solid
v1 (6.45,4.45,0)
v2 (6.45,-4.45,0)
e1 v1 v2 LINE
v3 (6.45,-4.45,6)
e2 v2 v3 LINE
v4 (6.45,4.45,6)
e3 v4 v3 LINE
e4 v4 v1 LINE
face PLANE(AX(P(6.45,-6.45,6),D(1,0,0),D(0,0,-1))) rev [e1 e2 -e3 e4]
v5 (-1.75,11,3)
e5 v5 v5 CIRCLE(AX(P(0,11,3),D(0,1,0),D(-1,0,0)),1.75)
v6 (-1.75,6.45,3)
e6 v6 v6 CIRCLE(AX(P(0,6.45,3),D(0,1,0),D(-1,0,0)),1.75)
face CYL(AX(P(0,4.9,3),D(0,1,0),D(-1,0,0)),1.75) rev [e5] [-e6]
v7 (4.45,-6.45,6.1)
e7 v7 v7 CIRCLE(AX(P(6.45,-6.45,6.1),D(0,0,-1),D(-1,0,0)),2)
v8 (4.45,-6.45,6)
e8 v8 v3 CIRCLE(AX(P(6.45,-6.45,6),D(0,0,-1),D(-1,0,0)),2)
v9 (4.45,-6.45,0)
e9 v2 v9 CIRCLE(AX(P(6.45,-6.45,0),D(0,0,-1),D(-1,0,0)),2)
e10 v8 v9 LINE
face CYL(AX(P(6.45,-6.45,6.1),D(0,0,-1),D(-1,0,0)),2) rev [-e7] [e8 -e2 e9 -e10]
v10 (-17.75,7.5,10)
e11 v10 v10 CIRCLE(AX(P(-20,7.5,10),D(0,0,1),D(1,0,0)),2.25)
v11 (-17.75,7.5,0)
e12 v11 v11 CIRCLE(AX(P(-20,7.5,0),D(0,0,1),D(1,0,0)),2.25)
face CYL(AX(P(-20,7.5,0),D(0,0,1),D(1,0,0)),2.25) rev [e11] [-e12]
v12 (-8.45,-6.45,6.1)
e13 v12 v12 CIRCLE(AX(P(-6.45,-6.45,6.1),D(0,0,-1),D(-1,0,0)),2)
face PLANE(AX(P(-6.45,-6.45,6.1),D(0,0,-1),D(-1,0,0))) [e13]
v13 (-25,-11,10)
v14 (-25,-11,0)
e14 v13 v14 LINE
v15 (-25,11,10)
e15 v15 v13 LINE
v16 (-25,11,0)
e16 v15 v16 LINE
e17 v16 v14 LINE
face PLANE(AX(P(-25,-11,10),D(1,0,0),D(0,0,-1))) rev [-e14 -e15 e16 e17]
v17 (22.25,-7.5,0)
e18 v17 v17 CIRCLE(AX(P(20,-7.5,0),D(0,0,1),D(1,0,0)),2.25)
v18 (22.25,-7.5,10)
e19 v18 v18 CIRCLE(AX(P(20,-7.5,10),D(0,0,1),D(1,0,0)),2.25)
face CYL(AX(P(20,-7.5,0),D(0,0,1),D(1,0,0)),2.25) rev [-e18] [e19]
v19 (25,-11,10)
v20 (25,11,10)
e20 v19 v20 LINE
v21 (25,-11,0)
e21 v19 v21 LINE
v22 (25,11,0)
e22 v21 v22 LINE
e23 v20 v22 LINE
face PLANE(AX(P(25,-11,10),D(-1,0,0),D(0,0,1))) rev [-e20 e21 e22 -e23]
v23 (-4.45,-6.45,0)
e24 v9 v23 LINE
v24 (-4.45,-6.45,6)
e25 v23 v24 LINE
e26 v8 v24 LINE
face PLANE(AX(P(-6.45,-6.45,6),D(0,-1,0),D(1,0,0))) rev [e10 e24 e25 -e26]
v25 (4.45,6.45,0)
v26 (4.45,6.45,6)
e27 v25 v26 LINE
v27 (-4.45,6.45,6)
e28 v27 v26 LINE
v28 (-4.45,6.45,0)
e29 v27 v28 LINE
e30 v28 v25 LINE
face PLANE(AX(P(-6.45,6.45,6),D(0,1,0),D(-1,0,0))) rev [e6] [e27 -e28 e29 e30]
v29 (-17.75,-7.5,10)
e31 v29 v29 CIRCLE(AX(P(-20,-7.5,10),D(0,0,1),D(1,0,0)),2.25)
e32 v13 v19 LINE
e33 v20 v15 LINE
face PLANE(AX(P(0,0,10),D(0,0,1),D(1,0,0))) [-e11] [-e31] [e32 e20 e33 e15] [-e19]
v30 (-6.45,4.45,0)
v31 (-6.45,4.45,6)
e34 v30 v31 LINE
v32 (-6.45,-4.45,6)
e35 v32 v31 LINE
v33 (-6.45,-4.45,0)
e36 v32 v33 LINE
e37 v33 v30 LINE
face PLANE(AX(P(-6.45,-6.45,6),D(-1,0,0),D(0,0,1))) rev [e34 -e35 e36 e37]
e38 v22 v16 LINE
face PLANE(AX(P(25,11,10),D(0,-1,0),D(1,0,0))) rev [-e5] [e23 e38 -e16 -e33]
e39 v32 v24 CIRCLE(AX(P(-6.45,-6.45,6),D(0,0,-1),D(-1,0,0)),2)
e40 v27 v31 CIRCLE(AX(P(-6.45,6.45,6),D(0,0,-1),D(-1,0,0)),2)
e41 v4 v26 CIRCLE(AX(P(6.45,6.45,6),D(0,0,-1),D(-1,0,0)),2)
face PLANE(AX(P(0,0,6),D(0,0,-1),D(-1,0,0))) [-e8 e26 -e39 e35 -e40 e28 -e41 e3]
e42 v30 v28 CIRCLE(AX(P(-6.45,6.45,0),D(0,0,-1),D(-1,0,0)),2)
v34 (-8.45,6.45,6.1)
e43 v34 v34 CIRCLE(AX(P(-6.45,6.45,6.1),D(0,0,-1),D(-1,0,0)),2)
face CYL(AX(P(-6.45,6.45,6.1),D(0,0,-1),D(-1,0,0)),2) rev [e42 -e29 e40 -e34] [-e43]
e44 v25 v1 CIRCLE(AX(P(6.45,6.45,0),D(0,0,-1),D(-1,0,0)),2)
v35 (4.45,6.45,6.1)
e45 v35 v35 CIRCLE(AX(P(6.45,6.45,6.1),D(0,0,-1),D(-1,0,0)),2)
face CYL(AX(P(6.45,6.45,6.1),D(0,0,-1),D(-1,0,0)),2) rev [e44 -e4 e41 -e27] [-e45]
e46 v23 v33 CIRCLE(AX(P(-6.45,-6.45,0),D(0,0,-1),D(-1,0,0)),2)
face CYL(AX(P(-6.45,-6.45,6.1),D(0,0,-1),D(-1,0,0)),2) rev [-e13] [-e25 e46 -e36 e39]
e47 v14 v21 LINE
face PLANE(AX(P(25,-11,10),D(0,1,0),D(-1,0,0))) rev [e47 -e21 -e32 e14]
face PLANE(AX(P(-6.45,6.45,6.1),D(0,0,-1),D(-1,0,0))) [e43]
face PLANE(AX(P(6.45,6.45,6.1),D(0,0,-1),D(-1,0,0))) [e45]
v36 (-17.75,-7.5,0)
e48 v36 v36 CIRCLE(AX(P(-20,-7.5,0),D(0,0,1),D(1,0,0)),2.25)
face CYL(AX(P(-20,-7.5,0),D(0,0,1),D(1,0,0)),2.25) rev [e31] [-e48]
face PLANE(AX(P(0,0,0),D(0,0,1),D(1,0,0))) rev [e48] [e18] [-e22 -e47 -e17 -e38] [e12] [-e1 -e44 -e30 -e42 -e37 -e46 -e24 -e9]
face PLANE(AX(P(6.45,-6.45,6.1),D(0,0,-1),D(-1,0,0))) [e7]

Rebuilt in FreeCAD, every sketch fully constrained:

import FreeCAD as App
import Part
import Sketcher

V = App.Vector
Q = App.Units.Quantity


def add_polygon(sketch, points):
    """Adds a closed chain of lines whose ends are joined by coincident constraints."""
    first, n = sketch.GeometryCount, len(points)
    for a, b in zip(points, points[1:] + points[:1]):
        sketch.addGeometry(Part.LineSegment(App.Vector(*a, 0), App.Vector(*b, 0)), False)
    for i in range(n):
        sketch.addConstraint(Sketcher.Constraint("Coincident", first + i, 2, first + (i + 1) % n, 1))

doc = App.newDocument("Part")
body = doc.addObject("PartDesign::Body", "Body")

# Sketch on XY plane
sketch1 = body.newObject("Sketcher::SketchObject", "Sketch")
sketch1.AttachmentSupport = (doc.getObject("XY_Plane"), [""])
sketch1.MapMode = "FlatFace"
add_polygon(sketch1, [(-25, 11), (-25, -11), (25, -11), (25, 11)])  # lines 0-3
sketch1.addConstraint([
    Sketcher.Constraint("Vertical", 0),
    Sketcher.Constraint("Horizontal", 1),
    Sketcher.Constraint("Vertical", 2),
    Sketcher.Constraint("Horizontal", 3),
    Sketcher.Constraint("Symmetric", 0, 2, 2, 2, -1, 1),
    Sketcher.Constraint("DistanceX", 1, 1, 1, 2, Q("50 mm")),
    Sketcher.Constraint("DistanceY", 0, 2, 0, 1, Q("22 mm")),
])
pad1 = body.newObject("PartDesign::Pad", "Pad")
pad1.Profile = sketch1
pad1.Length = 10

# Sketch on XY plane
sketch2 = body.newObject("Sketcher::SketchObject", "Sketch001")
sketch2.AttachmentSupport = (doc.getObject("XY_Plane"), [""])
sketch2.MapMode = "FlatFace"
sketch2.AttachmentOffset = App.Placement(V(0, 0, 10), App.Rotation())
sketch2.addGeometry([
    Part.Circle(V(-20, 7.5, 0), V(0, 0, 1), 2.2),
    Part.Circle(V(-20, -7.5, 0), V(0, 0, 1), 2.2),
    Part.Circle(V(20, -7.5, 0), V(0, 0, 1), 2.2),
], False)
sketch2.addConstraint([
    Sketcher.Constraint("Equal", 0, 1),
    Sketcher.Constraint("Equal", 1, 2),
    Sketcher.Constraint("Symmetric", 0, 3, 2, 3, -1, 1),
    Sketcher.Constraint("Symmetric", 1, 3, 2, 3, -2),
    Sketcher.Constraint("Diameter", 0, Q("4.5 mm")),
    Sketcher.Constraint("DistanceX", 0, 3, -1, 1, Q("20 mm")),
    Sketcher.Constraint("DistanceY", 1, 3, 0, 3, Q("15 mm")),
])
pocket1 = body.newObject("PartDesign::Pocket", "Pocket")
pocket1.Profile = sketch2
pocket1.Type = "ThroughAll"

# Sketch on XY plane
sketch3 = body.newObject("Sketcher::SketchObject", "Sketch002")
sketch3.AttachmentSupport = (doc.getObject("XY_Plane"), [""])
sketch3.MapMode = "FlatFace"
add_polygon(sketch3, [(6, 6), (6, -6), (-6, -6), (-6, 6)])  # lines 0-3
sketch3.addConstraint([
    Sketcher.Constraint("Vertical", 0),
    Sketcher.Constraint("Horizontal", 1),
    Sketcher.Constraint("Vertical", 2),
    Sketcher.Constraint("Horizontal", 3),
    Sketcher.Constraint("Symmetric", 0, 2, 2, 2, -1, 1),
    Sketcher.Constraint("Equal", 3, 0),
    Sketcher.Constraint("DistanceX", 1, 2, 1, 1, Q("12.9 mm")),
])
pocket2 = body.newObject("PartDesign::Pocket", "Pocket001")
pocket2.Profile = sketch3
pocket2.Length = 6
pocket2.Reversed = True

# Sketch on XY plane
sketch4 = body.newObject("Sketcher::SketchObject", "Sketch003")
sketch4.AttachmentSupport = (doc.getObject("XY_Plane"), [""])
sketch4.MapMode = "FlatFace"
sketch4.addGeometry([
    Part.Circle(V(6.5, 6.5, 0), V(0, 0, 1), 2),
    Part.Circle(V(-6.5, 6.5, 0), V(0, 0, 1), 2),
    Part.Circle(V(6.5, -6.5, 0), V(0, 0, 1), 2),
    Part.Circle(V(-6.5, -6.5, 0), V(0, 0, 1), 2),
], False)
sketch4.addConstraint([
    Sketcher.Constraint("Equal", 0, 1),
    Sketcher.Constraint("Equal", 1, 2),
    Sketcher.Constraint("Equal", 2, 3),
    Sketcher.Constraint("Symmetric", 1, 3, 2, 3, -1, 1),
    Sketcher.Constraint("Symmetric", 0, 3, 3, 3, -1, 1),
    Sketcher.Constraint("Symmetric", 0, 3, 1, 3, -2),
    Sketcher.Constraint("Diameter", 0, Q("4 mm")),
    Sketcher.Constraint("DistanceX", 1, 3, 0, 3, Q("12.9 mm")),
    Sketcher.Constraint("DistanceY", 2, 3, 0, 3, Q("12.9 mm")),
])
pocket3 = body.newObject("PartDesign::Pocket", "Pocket002")
pocket3.Profile = sketch4
pocket3.Length = 6.1
pocket3.Reversed = True

# Sketch on XZ plane
sketch5 = body.newObject("Sketcher::SketchObject", "Sketch004")
sketch5.AttachmentSupport = (doc.getObject("XZ_Plane"), [""])
sketch5.MapMode = "FlatFace"
sketch5.AttachmentOffset = App.Placement(V(0, 0, -11), App.Rotation())
sketch5.addGeometry(Part.Circle(V(0, 3, 0), V(0, 0, 1), 1.8), False)
sketch5.addConstraint([
    Sketcher.Constraint("PointOnObject", 0, 3, -2),
    Sketcher.Constraint("Diameter", 0, Q("3.5 mm")),
    Sketcher.Constraint("DistanceY", -1, 1, 0, 3, Q("3 mm")),
])
pocket4 = body.newObject("PartDesign::Pocket", "Pocket003")
pocket4.Profile = sketch5
pocket4.Length = 6.1
pocket4.Reversed = True

doc.recompute()
